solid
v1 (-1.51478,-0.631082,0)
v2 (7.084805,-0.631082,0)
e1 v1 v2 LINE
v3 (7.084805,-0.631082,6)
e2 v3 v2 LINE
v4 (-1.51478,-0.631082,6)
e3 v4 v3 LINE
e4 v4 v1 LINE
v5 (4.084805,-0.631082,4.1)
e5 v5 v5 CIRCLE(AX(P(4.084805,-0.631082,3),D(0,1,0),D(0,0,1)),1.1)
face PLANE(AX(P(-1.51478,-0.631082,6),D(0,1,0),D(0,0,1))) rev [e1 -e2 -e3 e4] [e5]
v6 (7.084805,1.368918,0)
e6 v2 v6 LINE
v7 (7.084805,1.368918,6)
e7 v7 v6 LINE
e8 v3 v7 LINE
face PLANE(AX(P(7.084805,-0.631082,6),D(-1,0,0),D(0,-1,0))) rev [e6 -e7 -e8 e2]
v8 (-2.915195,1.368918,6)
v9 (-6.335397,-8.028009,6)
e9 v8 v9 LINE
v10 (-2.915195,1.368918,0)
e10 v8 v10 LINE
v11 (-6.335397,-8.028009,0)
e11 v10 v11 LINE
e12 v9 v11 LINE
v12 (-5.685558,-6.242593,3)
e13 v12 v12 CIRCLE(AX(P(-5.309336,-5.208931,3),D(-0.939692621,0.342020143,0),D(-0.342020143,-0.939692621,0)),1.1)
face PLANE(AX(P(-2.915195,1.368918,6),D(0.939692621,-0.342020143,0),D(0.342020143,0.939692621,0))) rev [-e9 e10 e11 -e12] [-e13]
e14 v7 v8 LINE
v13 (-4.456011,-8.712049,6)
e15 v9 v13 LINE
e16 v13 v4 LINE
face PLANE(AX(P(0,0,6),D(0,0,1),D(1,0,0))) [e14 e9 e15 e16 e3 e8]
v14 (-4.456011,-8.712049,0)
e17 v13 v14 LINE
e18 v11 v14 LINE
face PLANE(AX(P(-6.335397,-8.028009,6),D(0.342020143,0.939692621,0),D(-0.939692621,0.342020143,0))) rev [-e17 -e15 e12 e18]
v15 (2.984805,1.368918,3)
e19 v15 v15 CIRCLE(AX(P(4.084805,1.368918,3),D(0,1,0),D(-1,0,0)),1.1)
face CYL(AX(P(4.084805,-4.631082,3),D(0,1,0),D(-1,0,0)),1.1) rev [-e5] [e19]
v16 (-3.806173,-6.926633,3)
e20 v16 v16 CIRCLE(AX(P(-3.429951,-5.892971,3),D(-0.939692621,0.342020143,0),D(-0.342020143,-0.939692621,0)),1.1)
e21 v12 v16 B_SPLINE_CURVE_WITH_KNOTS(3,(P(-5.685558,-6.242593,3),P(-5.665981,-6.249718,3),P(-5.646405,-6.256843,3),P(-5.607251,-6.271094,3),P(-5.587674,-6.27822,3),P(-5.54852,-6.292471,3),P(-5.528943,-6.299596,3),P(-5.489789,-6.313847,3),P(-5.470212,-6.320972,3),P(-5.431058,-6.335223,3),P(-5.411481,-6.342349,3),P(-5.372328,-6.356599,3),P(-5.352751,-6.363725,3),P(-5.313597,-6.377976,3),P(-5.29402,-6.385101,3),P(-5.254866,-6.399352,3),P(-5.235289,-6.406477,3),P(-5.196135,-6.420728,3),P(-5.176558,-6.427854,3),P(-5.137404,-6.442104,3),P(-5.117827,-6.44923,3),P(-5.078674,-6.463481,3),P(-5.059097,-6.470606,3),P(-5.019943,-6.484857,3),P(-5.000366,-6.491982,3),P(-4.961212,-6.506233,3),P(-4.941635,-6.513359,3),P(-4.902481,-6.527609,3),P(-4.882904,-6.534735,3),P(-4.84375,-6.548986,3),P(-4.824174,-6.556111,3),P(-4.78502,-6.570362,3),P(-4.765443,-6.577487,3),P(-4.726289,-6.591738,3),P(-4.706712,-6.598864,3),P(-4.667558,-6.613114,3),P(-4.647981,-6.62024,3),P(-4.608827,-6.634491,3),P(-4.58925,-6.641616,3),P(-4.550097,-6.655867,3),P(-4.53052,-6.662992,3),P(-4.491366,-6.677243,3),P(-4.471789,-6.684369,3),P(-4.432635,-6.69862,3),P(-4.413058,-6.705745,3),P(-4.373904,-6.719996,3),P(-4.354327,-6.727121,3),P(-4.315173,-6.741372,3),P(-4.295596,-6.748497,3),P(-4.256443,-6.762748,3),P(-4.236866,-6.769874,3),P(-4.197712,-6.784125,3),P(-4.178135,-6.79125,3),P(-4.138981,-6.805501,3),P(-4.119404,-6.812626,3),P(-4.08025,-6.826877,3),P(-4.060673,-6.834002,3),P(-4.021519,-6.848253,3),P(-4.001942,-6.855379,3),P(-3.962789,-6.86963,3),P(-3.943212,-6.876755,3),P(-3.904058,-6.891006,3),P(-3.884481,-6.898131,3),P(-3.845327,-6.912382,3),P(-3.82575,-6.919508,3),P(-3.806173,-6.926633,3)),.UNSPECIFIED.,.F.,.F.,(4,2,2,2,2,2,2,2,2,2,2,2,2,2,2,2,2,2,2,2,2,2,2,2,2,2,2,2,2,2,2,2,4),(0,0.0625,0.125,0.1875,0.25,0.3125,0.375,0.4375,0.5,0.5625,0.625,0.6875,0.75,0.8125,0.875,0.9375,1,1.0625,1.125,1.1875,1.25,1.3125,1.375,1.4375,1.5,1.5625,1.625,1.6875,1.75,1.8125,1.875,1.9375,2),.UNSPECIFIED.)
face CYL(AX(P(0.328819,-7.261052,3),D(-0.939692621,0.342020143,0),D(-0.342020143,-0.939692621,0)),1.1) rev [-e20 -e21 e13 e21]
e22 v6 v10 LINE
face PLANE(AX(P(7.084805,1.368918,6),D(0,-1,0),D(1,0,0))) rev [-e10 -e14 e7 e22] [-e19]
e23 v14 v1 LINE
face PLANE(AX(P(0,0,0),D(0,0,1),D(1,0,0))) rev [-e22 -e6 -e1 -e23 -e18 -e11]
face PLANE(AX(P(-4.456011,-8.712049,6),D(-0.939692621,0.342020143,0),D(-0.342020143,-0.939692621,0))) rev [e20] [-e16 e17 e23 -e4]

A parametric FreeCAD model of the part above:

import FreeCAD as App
import Part
import Sketcher
from FreeCAD import Vector
Q = App.Units.Quantity

doc = App.newDocument("Part")
body = doc.addObject("PartDesign::Body", "Body")

# Sketch on XY plane
sketch1 = doc.addObject("Sketcher::SketchObject", "Sketch")
body.addObject(sketch1)
sketch1.AttachmentSupport = (doc.XY_Plane, [""])
sketch1.MapMode = "FlatFace"
sketch1.addGeometry(Part.LineSegment(Vector(7.1, 1.4, 0), Vector(-2.9, 1.4, 0)), False)
sketch1.addGeometry(Part.LineSegment(Vector(-2.9, 1.4, 0), Vector(-6.3, -8, 0)), False)
sketch1.addGeometry(Part.LineSegment(Vector(-6.3, -8, 0), Vector(-4.5, -8.7, 0)), False)
sketch1.addGeometry(Part.LineSegment(Vector(-4.5, -8.7, 0), Vector(-1.5, -0.6, 0)), False)
sketch1.addGeometry(Part.LineSegment(Vector(-1.5, -0.6, 0), Vector(7.1, -0.6, 0)), False)
sketch1.addGeometry(Part.LineSegment(Vector(7.1, -0.6, 0), Vector(7.1, 1.4, 0)), False)
sketch1.addConstraint(Sketcher.Constraint("Coincident", 0, 2, 1, 1))
sketch1.addConstraint(Sketcher.Constraint("Coincident", 1, 2, 2, 1))
sketch1.addConstraint(Sketcher.Constraint("Coincident", 2, 2, 3, 1))
sketch1.addConstraint(Sketcher.Constraint("Coincident", 3, 2, 4, 1))
sketch1.addConstraint(Sketcher.Constraint("Coincident", 4, 2, 5, 1))
sketch1.addConstraint(Sketcher.Constraint("Coincident", 5, 2, 0, 1))
sketch1.addConstraint(Sketcher.Constraint("Horizontal", 0))
sketch1.addConstraint(Sketcher.Constraint("Horizontal", 4))
sketch1.addConstraint(Sketcher.Constraint("Vertical", 5))
sketch1.addConstraint(Sketcher.Constraint("Perpendicular", 1, 2))
sketch1.addConstraint(Sketcher.Constraint("Perpendicular", 2, 3))
sketch1.addConstraint(Sketcher.Constraint("DistanceX", 0, 2, 0, 1, Q("10 mm")))
sketch1.addConstraint(Sketcher.Constraint("DistanceY", 5, 1, 5, 2, Q("2 mm")))
sketch1.addConstraint(Sketcher.Constraint("Angle", 1, Q("-110 deg")))
sketch1.addConstraint(Sketcher.Constraint("Distance", 1, Q("10 mm")))
sketch1.addConstraint(Sketcher.Constraint("Distance", 2, Q("2 mm")))
sketch1.addConstraint(Sketcher.Constraint("DistanceY", 1, 2, -1, 1, Q("8.028009 mm")))
sketch1.addConstraint(Sketcher.Constraint("DistanceX", 2, 2, -1, 1, Q("4.456011 mm")))
pad1 = doc.addObject("PartDesign::Pad", "Pad")
body.addObject(pad1)
pad1.Profile = sketch1
pad1.Length = 6

# Sketch on XZ plane
sketch2 = doc.addObject("Sketcher::SketchObject", "Sketch001")
body.addObject(sketch2)
sketch2.AttachmentSupport = (doc.XZ_Plane, [""])
sketch2.MapMode = "FlatFace"
sketch2.AttachmentOffset = App.Placement(Vector(0, 0, -1.368918), App.Rotation())
sketch2.addGeometry(Part.Circle(Vector(4.1, 3, 0), Vector(0, 0, 1), 1.1), False)
sketch2.addConstraint(Sketcher.Constraint("Diameter", 0, Q("2.2 mm")))
sketch2.addConstraint(Sketcher.Constraint("DistanceY", -1, 1, 0, 3, Q("3 mm")))
sketch2.addConstraint(Sketcher.Constraint("DistanceX", -1, 1, 0, 3, Q("4.084805 mm")))
pocket1 = doc.addObject("PartDesign::Pocket", "Pocket")
body.addObject(pocket1)
pocket1.Profile = sketch2
pocket1.Length = 6
pocket1.Reversed = True

# Sketch on an angled plane
sketch3 = doc.addObject("Sketcher::SketchObject", "Sketch002")
body.addObject(sketch3)
sketch3.Placement = App.Placement(Vector(-3.014144, 1.097059, 0), App.Rotation(Vector(0, 0, 1), Vector(0.342020143, 0.939692621, 0), Vector(-0.939692621, 0.342020143, 0), "ZXY"))
sketch3.addGeometry(Part.Circle(Vector(3, -6.7, 0), Vector(0, 0, 1), 1.1), False)
sketch3.addConstraint(Sketcher.Constraint("Diameter", 0, Q("2.2 mm")))
sketch3.addConstraint(Sketcher.Constraint("DistanceX", -1, 1, 0, 3, Q("3 mm")))
sketch3.addConstraint(Sketcher.Constraint("DistanceY", 0, 3, -1, 1, Q("6.710694 mm")))
pocket2 = doc.addObject("PartDesign::Pocket", "Pocket001")
body.addObject(pocket2)
pocket2.Profile = sketch3
pocket2.Length = 6

doc.recompute()
